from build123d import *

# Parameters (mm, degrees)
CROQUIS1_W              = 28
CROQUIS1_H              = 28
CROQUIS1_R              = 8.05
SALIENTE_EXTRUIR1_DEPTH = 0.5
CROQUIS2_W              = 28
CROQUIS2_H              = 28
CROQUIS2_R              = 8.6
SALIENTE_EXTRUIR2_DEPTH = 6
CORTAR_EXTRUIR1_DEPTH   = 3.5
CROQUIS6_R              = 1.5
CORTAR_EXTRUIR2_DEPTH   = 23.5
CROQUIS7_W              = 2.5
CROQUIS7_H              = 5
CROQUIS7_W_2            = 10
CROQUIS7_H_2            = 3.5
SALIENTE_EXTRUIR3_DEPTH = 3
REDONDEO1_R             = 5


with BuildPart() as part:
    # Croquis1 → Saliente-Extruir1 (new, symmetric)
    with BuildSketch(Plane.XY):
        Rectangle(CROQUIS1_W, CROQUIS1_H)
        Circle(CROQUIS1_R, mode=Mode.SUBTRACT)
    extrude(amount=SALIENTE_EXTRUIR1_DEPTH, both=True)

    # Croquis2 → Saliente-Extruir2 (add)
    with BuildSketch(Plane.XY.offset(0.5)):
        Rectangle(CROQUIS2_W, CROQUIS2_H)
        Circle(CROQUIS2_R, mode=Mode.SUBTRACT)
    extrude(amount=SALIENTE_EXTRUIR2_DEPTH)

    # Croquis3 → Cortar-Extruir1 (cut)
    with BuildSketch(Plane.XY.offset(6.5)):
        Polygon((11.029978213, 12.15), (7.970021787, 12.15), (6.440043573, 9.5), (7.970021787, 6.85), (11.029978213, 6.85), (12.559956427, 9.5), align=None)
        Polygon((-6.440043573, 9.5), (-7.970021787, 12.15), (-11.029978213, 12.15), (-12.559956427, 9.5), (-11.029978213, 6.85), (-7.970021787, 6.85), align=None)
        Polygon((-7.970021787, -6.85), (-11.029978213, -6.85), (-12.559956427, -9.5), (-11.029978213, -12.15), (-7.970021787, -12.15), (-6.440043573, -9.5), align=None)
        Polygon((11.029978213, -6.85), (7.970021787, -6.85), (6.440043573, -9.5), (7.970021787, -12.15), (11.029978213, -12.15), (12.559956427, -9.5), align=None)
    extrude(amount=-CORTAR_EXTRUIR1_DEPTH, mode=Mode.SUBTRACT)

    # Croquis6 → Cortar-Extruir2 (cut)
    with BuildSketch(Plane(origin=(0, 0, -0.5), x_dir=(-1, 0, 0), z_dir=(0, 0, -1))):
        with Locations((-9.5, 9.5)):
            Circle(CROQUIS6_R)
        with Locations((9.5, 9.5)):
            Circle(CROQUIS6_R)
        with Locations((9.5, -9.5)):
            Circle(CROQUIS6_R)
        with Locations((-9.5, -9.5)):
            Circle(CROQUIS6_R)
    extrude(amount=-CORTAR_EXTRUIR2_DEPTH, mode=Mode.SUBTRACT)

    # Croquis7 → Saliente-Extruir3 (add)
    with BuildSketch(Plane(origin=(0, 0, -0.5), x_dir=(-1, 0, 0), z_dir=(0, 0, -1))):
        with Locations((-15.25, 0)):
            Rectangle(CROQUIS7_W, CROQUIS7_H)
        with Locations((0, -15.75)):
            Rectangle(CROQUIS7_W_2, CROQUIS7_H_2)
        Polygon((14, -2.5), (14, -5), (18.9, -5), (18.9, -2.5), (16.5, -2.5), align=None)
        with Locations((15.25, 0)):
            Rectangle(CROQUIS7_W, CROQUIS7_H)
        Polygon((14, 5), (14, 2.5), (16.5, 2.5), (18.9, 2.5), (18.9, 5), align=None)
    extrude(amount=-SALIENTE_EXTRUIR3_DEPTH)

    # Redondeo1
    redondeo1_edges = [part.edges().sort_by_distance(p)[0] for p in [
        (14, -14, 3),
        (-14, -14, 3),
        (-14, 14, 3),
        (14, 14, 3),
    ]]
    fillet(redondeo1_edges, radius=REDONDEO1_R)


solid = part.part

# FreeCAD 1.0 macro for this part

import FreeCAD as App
import Part
import Sketcher

V = App.Vector
Q = App.Units.Quantity


def edges_at(feature, points):
    """Names of the edges that pass closest to the given points."""
    edges = feature.Shape.Edges
    near = lambda p: min(range(len(edges)), key=lambda i: edges[i].distToShape(Part.Vertex(*p))[0])
    return sorted({f"Edge{near(p) + 1}" for p in points})

doc = App.newDocument("Part")
body = doc.addObject("PartDesign::Body", "Body")

sketch1 = body.newObject("Sketcher::SketchObject", "Sketch")
sketch1.AttachmentSupport = (doc.getObject("XY_Plane"), [""])
sketch1.MapMode = "FlatFace"
sketch1.addGeometry([
    Part.LineSegment(V(-14, 14, 0), V(-14, -14, 0)),
    Part.LineSegment(V(-14, -14, 0), V(14, -14, 0)),
    Part.LineSegment(V(14, -14, 0), V(14, 14, 0)),
    Part.LineSegment(V(14, 14, 0), V(-14, 14, 0)),
    Part.Circle(V(0, 0, 0), V(0, 0, 1), 8.05),
], False)
sketch1.addConstraint([
    Sketcher.Constraint("Coincident", 0, 2, 1, 1),
    Sketcher.Constraint("Coincident", 1, 2, 2, 1),
    Sketcher.Constraint("Coincident", 2, 2, 3, 1),
    Sketcher.Constraint("Coincident", 3, 2, 0, 1),
    Sketcher.Constraint("Vertical", 0),
    Sketcher.Constraint("Horizontal", 1),
    Sketcher.Constraint("Vertical", 2),
    Sketcher.Constraint("Horizontal", 3),
    Sketcher.Constraint("Coincident", 4, 3, -1, 1),
    Sketcher.Constraint("Symmetric", 0, 2, 2, 2, -1, 1),
    Sketcher.Constraint("Equal", 3, 0),
    Sketcher.Constraint("Diameter", 4, Q("16.1 mm")),
    Sketcher.Constraint("DistanceX", 1, 1, 1, 2, Q("28 mm")),
])
pad1 = body.newObject("PartDesign::Pad", "Pad")
pad1.Profile = sketch1
pad1.Length = 1
pad1.Midplane = True

sketch2 = body.newObject("Sketcher::SketchObject", "Sketch001")
sketch2.AttachmentSupport = (doc.getObject("XY_Plane"), [""])
sketch2.MapMode = "FlatFace"
sketch2.AttachmentOffset = App.Placement(V(0, 0, 0.5), App.Rotation())
sketch2.addGeometry([
    Part.LineSegment(V(-14, 14, 0), V(-14, -14, 0)),
    Part.LineSegment(V(-14, -14, 0), V(14, -14, 0)),
    Part.LineSegment(V(14, -14, 0), V(14, 14, 0)),
    Part.LineSegment(V(14, 14, 0), V(-14, 14, 0)),
    Part.Circle(V(0, 0, 0), V(0, 0, 1), 8.6),
], False)
sketch2.addConstraint([
    Sketcher.Constraint("Coincident", 0, 2, 1, 1),
    Sketcher.Constraint("Coincident", 1, 2, 2, 1),
    Sketcher.Constraint("Coincident", 2, 2, 3, 1),
    Sketcher.Constraint("Coincident", 3, 2, 0, 1),
    Sketcher.Constraint("Vertical", 0),
    Sketcher.Constraint("Horizontal", 1),
    Sketcher.Constraint("Vertical", 2),
    Sketcher.Constraint("Horizontal", 3),
    Sketcher.Constraint("Coincident", 4, 3, -1, 1),
    Sketcher.Constraint("Symmetric", 0, 2, 2, 2, -1, 1),
    Sketcher.Constraint("Equal", 3, 0),
    Sketcher.Constraint("Diameter", 4, Q("17.2 mm")),
    Sketcher.Constraint("DistanceX", 1, 1, 1, 2, Q("28 mm")),
])
pad2 = body.newObject("PartDesign::Pad", "Pad001")
pad2.Profile = sketch2
pad2.Length = 6

sketch3 = body.newObject("Sketcher::SketchObject", "Sketch002")
sketch3.AttachmentSupport = (doc.getObject("XY_Plane"), [""])
sketch3.MapMode = "FlatFace"
sketch3.AttachmentOffset = App.Placement(V(0, 0, 6.5), App.Rotation())
sketch3.addGeometry([
    Part.LineSegment(V(11.029978, 12.15, 0), V(7.970022, 12.15, 0)),
    Part.LineSegment(V(7.970022, 12.15, 0), V(6.440044, 9.5, 0)),
    Part.LineSegment(V(6.440044, 9.5, 0), V(7.970022, 6.85, 0)),
    Part.LineSegment(V(7.970022, 6.85, 0), V(11.029978, 6.85, 0)),
    Part.LineSegment(V(11.029978, 6.85, 0), V(12.559956, 9.5, 0)),
    Part.LineSegment(V(12.559956, 9.5, 0), V(11.029978, 12.15, 0)),
    Part.LineSegment(V(-6.440044, 9.5, 0), V(-7.970022, 12.15, 0)),
    Part.LineSegment(V(-7.970022, 12.15, 0), V(-11.029978, 12.15, 0)),
    Part.LineSegment(V(-11.029978, 12.15, 0), V(-12.559956, 9.5, 0)),
    Part.LineSegment(V(-12.559956, 9.5, 0), V(-11.029978, 6.85, 0)),
    Part.LineSegment(V(-11.029978, 6.85, 0), V(-7.970022, 6.85, 0)),
    Part.LineSegment(V(-7.970022, 6.85, 0), V(-6.440044, 9.5, 0)),
    Part.LineSegment(V(-7.970022, -6.85, 0), V(-11.029978, -6.85, 0)),
    Part.LineSegment(V(-11.029978, -6.85, 0), V(-12.559956, -9.5, 0)),
    Part.LineSegment(V(-12.559956, -9.5, 0), V(-11.029978, -12.15, 0)),
    Part.LineSegment(V(-11.029978, -12.15, 0), V(-7.970022, -12.15, 0)),
    Part.LineSegment(V(-7.970022, -12.15, 0), V(-6.440044, -9.5, 0)),
    Part.LineSegment(V(-6.440044, -9.5, 0), V(-7.970022, -6.85, 0)),
    Part.LineSegment(V(11.029978, -6.85, 0), V(7.970022, -6.85, 0)),
    Part.LineSegment(V(7.970022, -6.85, 0), V(6.440044, -9.5, 0)),
    Part.LineSegment(V(6.440044, -9.5, 0), V(7.970022, -12.15, 0)),
    Part.LineSegment(V(7.970022, -12.15, 0), V(11.029978, -12.15, 0)),
    Part.LineSegment(V(11.029978, -12.15, 0), V(12.559956, -9.5, 0)),
    Part.LineSegment(V(12.559956, -9.5, 0), V(11.029978, -6.85, 0)),
], False)
sketch3.addConstraint([
    Sketcher.Constraint("Coincident", 0, 2, 1, 1),
    Sketcher.Constraint("Coincident", 1, 2, 2, 1),
    Sketcher.Constraint("Coincident", 2, 2, 3, 1),
    Sketcher.Constraint("Coincident", 3, 2, 4, 1),
    Sketcher.Constraint("Coincident", 4, 2, 5, 1),
    Sketcher.Constraint("Coincident", 5, 2, 0, 1),
    Sketcher.Constraint("Coincident", 6, 2, 7, 1),
    Sketcher.Constraint("Coincident", 7, 2, 8, 1),
    Sketcher.Constraint("Coincident", 8, 2, 9, 1),
    Sketcher.Constraint("Coincident", 9, 2, 10, 1),
    Sketcher.Constraint("Coincident", 10, 2, 11, 1),
    Sketcher.Constraint("Coincident", 11, 2, 6, 1),
    Sketcher.Constraint("Coincident", 12, 2, 13, 1),
    Sketcher.Constraint("Coincident", 13, 2, 14, 1),
    Sketcher.Constraint("Coincident", 14, 2, 15, 1),
    Sketcher.Constraint("Coincident", 15, 2, 16, 1),
    Sketcher.Constraint("Coincident", 16, 2, 17, 1),
    Sketcher.Constraint("Coincident", 17, 2, 12, 1),
    Sketcher.Constraint("Coincident", 18, 2, 19, 1),
    Sketcher.Constraint("Coincident", 19, 2, 20, 1),
    Sketcher.Constraint("Coincident", 20, 2, 21, 1),
    Sketcher.Constraint("Coincident", 21, 2, 22, 1),
    Sketcher.Constraint("Coincident", 22, 2, 23, 1),
    Sketcher.Constraint("Coincident", 23, 2, 18, 1),
    Sketcher.Constraint("Horizontal", 0),
    Sketcher.Constraint("Horizontal", 3),
    Sketcher.Constraint("Horizontal", 7),
    Sketcher.Constraint("Horizontal", 10),
    Sketcher.Constraint("Horizontal", 12),
    Sketcher.Constraint("Horizontal", 15),
    Sketcher.Constraint("Horizontal", 18),
    Sketcher.Constraint("Horizontal", 21),
    Sketcher.Constraint("Symmetric", 3, 2, 12, 2, -1, 1),
    Sketcher.Constraint("Symmetric", 4, 2, 13, 2, -1, 1),
    Sketcher.Constraint("Symmetric", 5, 2, 14, 2, -1, 1),
    Sketcher.Constraint("Symmetric", 1, 2, 16, 2, -1, 1),
    Sketcher.Constraint("Symmetric", 10, 2, 18, 2, -1, 1),
    Sketcher.Constraint("Symmetric", 11, 2, 19, 2, -1, 1),
    Sketcher.Constraint("Symmetric", 6, 2, 20, 2, -1, 1),
    Sketcher.Constraint("Symmetric", 8, 2, 22, 2, -1, 1),
    Sketcher.Constraint("Symmetric", 0, 2, 6, 2, -2),
    Sketcher.Constraint("Symmetric", 4, 2, 8, 2, -2),
    Sketcher.Constraint("Symmetric", 3, 2, 9, 2, -2),
    Sketcher.Constraint("Symmetric", 1, 2, 11, 2, -2),
    Sketcher.Constraint("Parallel", 1, 4),
    Sketcher.Constraint("Parallel", 2, 5),
    Sketcher.Constraint("Parallel", 5, 6),
    Sketcher.Constraint("Parallel", 4, 8),
    Sketcher.Constraint("Parallel", 8, 11),
    Sketcher.Constraint("Parallel", 13, 16),
    Sketcher.Constraint("Parallel", 14, 17),
    Sketcher.Constraint("Parallel", 19, 22),
    Sketcher.Constraint("Parallel", 20, 23),
    Sketcher.Constraint("Horizontal", 1, 2, 4, 2),
    Sketcher.Constraint("Vertical", 0, 2, 2, 2),
    Sketcher.Constraint("Angle", 1, Q("-120 deg")),
    Sketcher.Constraint("DistanceX", 6, 2, 5, 2, Q("19 mm")),
    Sketcher.Constraint("DistanceY", 12, 2, 7, 2, Q("19 mm")),
    Sketcher.Constraint("DistanceY", 2, 2, 0, 2, Q("5.3 mm")),
    Sketcher.Constraint("DistanceX", 0, 2, 0, 1, Q("3.059956 mm")),
])
pocket1 = body.newObject("PartDesign::Pocket", "Pocket")
pocket1.Profile = sketch3
pocket1.Length = 3.5

sketch4 = body.newObject("Sketcher::SketchObject", "Sketch003")
sketch4.AttachmentSupport = (doc.getObject("XY_Plane"), [""])
sketch4.MapMode = "FlatFace"
sketch4.AttachmentOffset = App.Placement(V(0, 0, -0.5), App.Rotation())
sketch4.addGeometry([
    Part.Circle(V(9.5, 9.5, 0), V(0, 0, 1), 1.5),
    Part.Circle(V(-9.5, 9.5, 0), V(0, 0, 1), 1.5),
    Part.Circle(V(-9.5, -9.5, 0), V(0, 0, 1), 1.5),
    Part.Circle(V(9.5, -9.5, 0), V(0, 0, 1), 1.5),
], False)
sketch4.addConstraint([
    Sketcher.Constraint("Equal", 0, 1),
    Sketcher.Constraint("Equal", 1, 2),
    Sketcher.Constraint("Equal", 2, 3),
    Sketcher.Constraint("Symmetric", 0, 3, 2, 3, -1, 1),
    Sketcher.Constraint("Symmetric", 1, 3, 3, 3, -1, 1),
    Sketcher.Constraint("Symmetric", 0, 3, 1, 3, -2),
    Sketcher.Constraint("Diameter", 0, Q("3 mm")),
    Sketcher.Constraint("DistanceX", 1, 3, 0, 3, Q("19 mm")),
    Sketcher.Constraint("DistanceY", 2, 3, 1, 3, Q("19 mm")),
])
pocket2 = body.newObject("PartDesign::Pocket", "Pocket001")
pocket2.Profile = sketch4
pocket2.Length = 23.5
pocket2.Reversed = True

sketch5 = body.newObject("Sketcher::SketchObject", "Sketch004")
sketch5.AttachmentSupport = (doc.getObject("XY_Plane"), [""])
sketch5.MapMode = "FlatFace"
sketch5.AttachmentOffset = App.Placement(V(0, 0, -0.5), App.Rotation())
sketch5.addGeometry([
    Part.LineSegment(V(16.5, 2.5, 0), V(16.5, -2.5, 0)),
    Part.LineSegment(V(16.5, -2.5, 0), V(14, -2.5, 0)),
    Part.LineSegment(V(14, -2.5, 0), V(14, 2.5, 0)),
    Part.LineSegment(V(14, 2.5, 0), V(16.5, 2.5, 0)),
    Part.LineSegment(V(5, -14, 0), V(5, -17.5, 0)),
    Part.LineSegment(V(5, -17.5, 0), V(-5, -17.5, 0)),
    Part.LineSegment(V(-5, -17.5, 0), V(-5, -14, 0)),
    Part.LineSegment(V(-5, -14, 0), V(5, -14, 0)),
    Part.LineSegment(V(-14, -5, 0), V(-18.9, -5, 0)),
    Part.LineSegment(V(-18.9, -5, 0), V(-18.9, -2.5, 0)),
    Part.LineSegment(V(-18.9, -2.5, 0), V(-16.5, -2.5, 0)),
    Part.LineSegment(V(-16.5, -2.5, 0), V(-16.5, 2.5, 0)),
    Part.LineSegment(V(-16.5, 2.5, 0), V(-18.9, 2.5, 0)),
    Part.LineSegment(V(-18.9, 2.5, 0), V(-18.9, 5, 0)),
    Part.LineSegment(V(-18.9, 5, 0), V(-14, 5, 0)),
    Part.LineSegment(V(-14, 5, 0), V(-14, -5, 0)),
], False)
sketch5.addConstraint([
    Sketcher.Constraint("Coincident", 0, 2, 1, 1),
    Sketcher.Constraint("Coincident", 1, 2, 2, 1),
    Sketcher.Constraint("Coincident", 2, 2, 3, 1),
    Sketcher.Constraint("Coincident", 3, 2, 0, 1),
    Sketcher.Constraint("Coincident", 4, 2, 5, 1),
    Sketcher.Constraint("Coincident", 5, 2, 6, 1),
    Sketcher.Constraint("Coincident", 6, 2, 7, 1),
    Sketcher.Constraint("Coincident", 7, 2, 4, 1),
    Sketcher.Constraint("Coincident", 8, 2, 9, 1),
    Sketcher.Constraint("Coincident", 9, 2, 10, 1),
    Sketcher.Constraint("Coincident", 10, 2, 11, 1),
    Sketcher.Constraint("Coincident", 11, 2, 12, 1),
    Sketcher.Constraint("Coincident", 12, 2, 13, 1),
    Sketcher.Constraint("Coincident", 13, 2, 14, 1),
    Sketcher.Constraint("Coincident", 14, 2, 15, 1),
    Sketcher.Constraint("Coincident", 15, 2, 8, 1),
    Sketcher.Constraint("Vertical", 0),
    Sketcher.Constraint("Horizontal", 1),
    Sketcher.Constraint("Vertical", 2),
    Sketcher.Constraint("Horizontal", 3),
    Sketcher.Constraint("Vertical", 4),
    Sketcher.Constraint("Horizontal", 5),
    Sketcher.Constraint("Vertical", 6),
    Sketcher.Constraint("Horizontal", 7),
    Sketcher.Constraint("Horizontal", 8),
    Sketcher.Constraint("Vertical", 9),
    Sketcher.Constraint("Horizontal", 10),
    Sketcher.Constraint("Vertical", 11),
    Sketcher.Constraint("Horizontal", 12),
    Sketcher.Constraint("Vertical", 13),
    Sketcher.Constraint("Horizontal", 14),
    Sketcher.Constraint("Vertical", 15),
    Sketcher.Constraint("Symmetric", 3, 2, 10, 2, -1, 1),
    Sketcher.Constraint("Symmetric", 9, 2, 12, 2, -1),
    Sketcher.Constraint("Horizontal", 1, 2, 9, 2),
    Sketcher.Constraint("Equal", 3, 9),
    Sketcher.Constraint("Equal", 9, 13),
    Sketcher.Constraint("Equal", 7, 15),
    Sketcher.Constraint("DistanceX", 5, 2, 5, 1, Q("10 mm")),
    Sketcher.Constraint("DistanceY", 0, 2, 0, 1, Q("5 mm")),
    Sketcher.Constraint("DistanceX", 8, 2, 8, 1, Q("4.9 mm")),
    Sketcher.Constraint("DistanceX", 10, 1, 10, 2, Q("2.4 mm")),
    Sketcher.Constraint("DistanceY", 4, 2, 4, 1, Q("3.5 mm")),
    Sketcher.Constraint("DistanceX", -1, 1, 1, 2, Q("14 mm")),
    Sketcher.Constraint("DistanceX", -1, 1, 4, 2, Q("5 mm")),
    Sketcher.Constraint("DistanceY", 6, 2, -1, 1, Q("14 mm")),
])
pad3 = body.newObject("PartDesign::Pad", "Pad002")
pad3.Profile = sketch5
pad3.Length = 3
doc.recompute()

fillet = body.newObject("PartDesign::Fillet", "Fillet")
fillet.Base = (pad3, edges_at(pad3, [
    (14, -14, 3),
    (-14, -14, 3),
    (-14, 14, 3),
    (14, 14, 3),
]))
fillet.Radius = 5

doc.recompute()
